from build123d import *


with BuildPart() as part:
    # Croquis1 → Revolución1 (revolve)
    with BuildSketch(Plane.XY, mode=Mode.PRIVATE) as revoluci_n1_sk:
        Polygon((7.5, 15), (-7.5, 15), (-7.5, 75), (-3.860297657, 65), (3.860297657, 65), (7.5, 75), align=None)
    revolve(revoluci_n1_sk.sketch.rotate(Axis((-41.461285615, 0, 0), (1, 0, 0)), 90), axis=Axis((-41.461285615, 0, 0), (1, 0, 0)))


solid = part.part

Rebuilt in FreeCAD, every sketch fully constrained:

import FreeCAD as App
import Part
import Sketcher

V = App.Vector
Q = App.Units.Quantity


def add_polygon(sketch, points):
    """Adds a closed chain of lines whose ends are joined by coincident constraints."""
    first, n = sketch.GeometryCount, len(points)
    for a, b in zip(points, points[1:] + points[:1]):
        sketch.addGeometry(Part.LineSegment(App.Vector(*a, 0), App.Vector(*b, 0)), False)
    for i in range(n):
        sketch.addConstraint(Sketcher.Constraint("Coincident", first + i, 2, first + (i + 1) % n, 1))

doc = App.newDocument("Part")
body = doc.addObject("PartDesign::Body", "Body")

sketch1 = doc.addObject("Sketcher::SketchObject", "Sketch")
body.addObject(sketch1)
sketch1.AttachmentSupport = (doc.XY_Plane, [""])
sketch1.MapMode = "FlatFace"
add_polygon(sketch1, [(-8, 15), (8, 15), (8, 75), (4, 65), (-4, 65), (-8, 75)])
sketch1.addConstraint([
    Sketcher.Constraint("Horizontal", 0),
    Sketcher.Constraint("Vertical", 1),
    Sketcher.Constraint("Horizontal", 3),
    Sketcher.Constraint("Vertical", 5),
    Sketcher.Constraint("Symmetric", 1, 2, 4, 2, -2),
    Sketcher.Constraint("Equal", 2, 4),
    Sketcher.Constraint("DistanceX", 0, 1, 0, 2, 15.0),
    Sketcher.Constraint("DistanceY", 1, 1, 1, 2, 60.0),
    Sketcher.Constraint("Angle", 2, Q("-110 deg")),
    Sketcher.Constraint("DistanceY", -1, 1, 0, 2, 15.0),
    Sketcher.Constraint("DistanceY", -1, 1, 2, 2, 65.0),
])
revolution = doc.addObject("PartDesign::Revolution", "Revolution")
body.addObject(revolution)
revolution.Profile = sketch1
revolution.ReferenceAxis = (sketch1, ["H_Axis"])
revolution.Angle = 360

doc.recompute()
